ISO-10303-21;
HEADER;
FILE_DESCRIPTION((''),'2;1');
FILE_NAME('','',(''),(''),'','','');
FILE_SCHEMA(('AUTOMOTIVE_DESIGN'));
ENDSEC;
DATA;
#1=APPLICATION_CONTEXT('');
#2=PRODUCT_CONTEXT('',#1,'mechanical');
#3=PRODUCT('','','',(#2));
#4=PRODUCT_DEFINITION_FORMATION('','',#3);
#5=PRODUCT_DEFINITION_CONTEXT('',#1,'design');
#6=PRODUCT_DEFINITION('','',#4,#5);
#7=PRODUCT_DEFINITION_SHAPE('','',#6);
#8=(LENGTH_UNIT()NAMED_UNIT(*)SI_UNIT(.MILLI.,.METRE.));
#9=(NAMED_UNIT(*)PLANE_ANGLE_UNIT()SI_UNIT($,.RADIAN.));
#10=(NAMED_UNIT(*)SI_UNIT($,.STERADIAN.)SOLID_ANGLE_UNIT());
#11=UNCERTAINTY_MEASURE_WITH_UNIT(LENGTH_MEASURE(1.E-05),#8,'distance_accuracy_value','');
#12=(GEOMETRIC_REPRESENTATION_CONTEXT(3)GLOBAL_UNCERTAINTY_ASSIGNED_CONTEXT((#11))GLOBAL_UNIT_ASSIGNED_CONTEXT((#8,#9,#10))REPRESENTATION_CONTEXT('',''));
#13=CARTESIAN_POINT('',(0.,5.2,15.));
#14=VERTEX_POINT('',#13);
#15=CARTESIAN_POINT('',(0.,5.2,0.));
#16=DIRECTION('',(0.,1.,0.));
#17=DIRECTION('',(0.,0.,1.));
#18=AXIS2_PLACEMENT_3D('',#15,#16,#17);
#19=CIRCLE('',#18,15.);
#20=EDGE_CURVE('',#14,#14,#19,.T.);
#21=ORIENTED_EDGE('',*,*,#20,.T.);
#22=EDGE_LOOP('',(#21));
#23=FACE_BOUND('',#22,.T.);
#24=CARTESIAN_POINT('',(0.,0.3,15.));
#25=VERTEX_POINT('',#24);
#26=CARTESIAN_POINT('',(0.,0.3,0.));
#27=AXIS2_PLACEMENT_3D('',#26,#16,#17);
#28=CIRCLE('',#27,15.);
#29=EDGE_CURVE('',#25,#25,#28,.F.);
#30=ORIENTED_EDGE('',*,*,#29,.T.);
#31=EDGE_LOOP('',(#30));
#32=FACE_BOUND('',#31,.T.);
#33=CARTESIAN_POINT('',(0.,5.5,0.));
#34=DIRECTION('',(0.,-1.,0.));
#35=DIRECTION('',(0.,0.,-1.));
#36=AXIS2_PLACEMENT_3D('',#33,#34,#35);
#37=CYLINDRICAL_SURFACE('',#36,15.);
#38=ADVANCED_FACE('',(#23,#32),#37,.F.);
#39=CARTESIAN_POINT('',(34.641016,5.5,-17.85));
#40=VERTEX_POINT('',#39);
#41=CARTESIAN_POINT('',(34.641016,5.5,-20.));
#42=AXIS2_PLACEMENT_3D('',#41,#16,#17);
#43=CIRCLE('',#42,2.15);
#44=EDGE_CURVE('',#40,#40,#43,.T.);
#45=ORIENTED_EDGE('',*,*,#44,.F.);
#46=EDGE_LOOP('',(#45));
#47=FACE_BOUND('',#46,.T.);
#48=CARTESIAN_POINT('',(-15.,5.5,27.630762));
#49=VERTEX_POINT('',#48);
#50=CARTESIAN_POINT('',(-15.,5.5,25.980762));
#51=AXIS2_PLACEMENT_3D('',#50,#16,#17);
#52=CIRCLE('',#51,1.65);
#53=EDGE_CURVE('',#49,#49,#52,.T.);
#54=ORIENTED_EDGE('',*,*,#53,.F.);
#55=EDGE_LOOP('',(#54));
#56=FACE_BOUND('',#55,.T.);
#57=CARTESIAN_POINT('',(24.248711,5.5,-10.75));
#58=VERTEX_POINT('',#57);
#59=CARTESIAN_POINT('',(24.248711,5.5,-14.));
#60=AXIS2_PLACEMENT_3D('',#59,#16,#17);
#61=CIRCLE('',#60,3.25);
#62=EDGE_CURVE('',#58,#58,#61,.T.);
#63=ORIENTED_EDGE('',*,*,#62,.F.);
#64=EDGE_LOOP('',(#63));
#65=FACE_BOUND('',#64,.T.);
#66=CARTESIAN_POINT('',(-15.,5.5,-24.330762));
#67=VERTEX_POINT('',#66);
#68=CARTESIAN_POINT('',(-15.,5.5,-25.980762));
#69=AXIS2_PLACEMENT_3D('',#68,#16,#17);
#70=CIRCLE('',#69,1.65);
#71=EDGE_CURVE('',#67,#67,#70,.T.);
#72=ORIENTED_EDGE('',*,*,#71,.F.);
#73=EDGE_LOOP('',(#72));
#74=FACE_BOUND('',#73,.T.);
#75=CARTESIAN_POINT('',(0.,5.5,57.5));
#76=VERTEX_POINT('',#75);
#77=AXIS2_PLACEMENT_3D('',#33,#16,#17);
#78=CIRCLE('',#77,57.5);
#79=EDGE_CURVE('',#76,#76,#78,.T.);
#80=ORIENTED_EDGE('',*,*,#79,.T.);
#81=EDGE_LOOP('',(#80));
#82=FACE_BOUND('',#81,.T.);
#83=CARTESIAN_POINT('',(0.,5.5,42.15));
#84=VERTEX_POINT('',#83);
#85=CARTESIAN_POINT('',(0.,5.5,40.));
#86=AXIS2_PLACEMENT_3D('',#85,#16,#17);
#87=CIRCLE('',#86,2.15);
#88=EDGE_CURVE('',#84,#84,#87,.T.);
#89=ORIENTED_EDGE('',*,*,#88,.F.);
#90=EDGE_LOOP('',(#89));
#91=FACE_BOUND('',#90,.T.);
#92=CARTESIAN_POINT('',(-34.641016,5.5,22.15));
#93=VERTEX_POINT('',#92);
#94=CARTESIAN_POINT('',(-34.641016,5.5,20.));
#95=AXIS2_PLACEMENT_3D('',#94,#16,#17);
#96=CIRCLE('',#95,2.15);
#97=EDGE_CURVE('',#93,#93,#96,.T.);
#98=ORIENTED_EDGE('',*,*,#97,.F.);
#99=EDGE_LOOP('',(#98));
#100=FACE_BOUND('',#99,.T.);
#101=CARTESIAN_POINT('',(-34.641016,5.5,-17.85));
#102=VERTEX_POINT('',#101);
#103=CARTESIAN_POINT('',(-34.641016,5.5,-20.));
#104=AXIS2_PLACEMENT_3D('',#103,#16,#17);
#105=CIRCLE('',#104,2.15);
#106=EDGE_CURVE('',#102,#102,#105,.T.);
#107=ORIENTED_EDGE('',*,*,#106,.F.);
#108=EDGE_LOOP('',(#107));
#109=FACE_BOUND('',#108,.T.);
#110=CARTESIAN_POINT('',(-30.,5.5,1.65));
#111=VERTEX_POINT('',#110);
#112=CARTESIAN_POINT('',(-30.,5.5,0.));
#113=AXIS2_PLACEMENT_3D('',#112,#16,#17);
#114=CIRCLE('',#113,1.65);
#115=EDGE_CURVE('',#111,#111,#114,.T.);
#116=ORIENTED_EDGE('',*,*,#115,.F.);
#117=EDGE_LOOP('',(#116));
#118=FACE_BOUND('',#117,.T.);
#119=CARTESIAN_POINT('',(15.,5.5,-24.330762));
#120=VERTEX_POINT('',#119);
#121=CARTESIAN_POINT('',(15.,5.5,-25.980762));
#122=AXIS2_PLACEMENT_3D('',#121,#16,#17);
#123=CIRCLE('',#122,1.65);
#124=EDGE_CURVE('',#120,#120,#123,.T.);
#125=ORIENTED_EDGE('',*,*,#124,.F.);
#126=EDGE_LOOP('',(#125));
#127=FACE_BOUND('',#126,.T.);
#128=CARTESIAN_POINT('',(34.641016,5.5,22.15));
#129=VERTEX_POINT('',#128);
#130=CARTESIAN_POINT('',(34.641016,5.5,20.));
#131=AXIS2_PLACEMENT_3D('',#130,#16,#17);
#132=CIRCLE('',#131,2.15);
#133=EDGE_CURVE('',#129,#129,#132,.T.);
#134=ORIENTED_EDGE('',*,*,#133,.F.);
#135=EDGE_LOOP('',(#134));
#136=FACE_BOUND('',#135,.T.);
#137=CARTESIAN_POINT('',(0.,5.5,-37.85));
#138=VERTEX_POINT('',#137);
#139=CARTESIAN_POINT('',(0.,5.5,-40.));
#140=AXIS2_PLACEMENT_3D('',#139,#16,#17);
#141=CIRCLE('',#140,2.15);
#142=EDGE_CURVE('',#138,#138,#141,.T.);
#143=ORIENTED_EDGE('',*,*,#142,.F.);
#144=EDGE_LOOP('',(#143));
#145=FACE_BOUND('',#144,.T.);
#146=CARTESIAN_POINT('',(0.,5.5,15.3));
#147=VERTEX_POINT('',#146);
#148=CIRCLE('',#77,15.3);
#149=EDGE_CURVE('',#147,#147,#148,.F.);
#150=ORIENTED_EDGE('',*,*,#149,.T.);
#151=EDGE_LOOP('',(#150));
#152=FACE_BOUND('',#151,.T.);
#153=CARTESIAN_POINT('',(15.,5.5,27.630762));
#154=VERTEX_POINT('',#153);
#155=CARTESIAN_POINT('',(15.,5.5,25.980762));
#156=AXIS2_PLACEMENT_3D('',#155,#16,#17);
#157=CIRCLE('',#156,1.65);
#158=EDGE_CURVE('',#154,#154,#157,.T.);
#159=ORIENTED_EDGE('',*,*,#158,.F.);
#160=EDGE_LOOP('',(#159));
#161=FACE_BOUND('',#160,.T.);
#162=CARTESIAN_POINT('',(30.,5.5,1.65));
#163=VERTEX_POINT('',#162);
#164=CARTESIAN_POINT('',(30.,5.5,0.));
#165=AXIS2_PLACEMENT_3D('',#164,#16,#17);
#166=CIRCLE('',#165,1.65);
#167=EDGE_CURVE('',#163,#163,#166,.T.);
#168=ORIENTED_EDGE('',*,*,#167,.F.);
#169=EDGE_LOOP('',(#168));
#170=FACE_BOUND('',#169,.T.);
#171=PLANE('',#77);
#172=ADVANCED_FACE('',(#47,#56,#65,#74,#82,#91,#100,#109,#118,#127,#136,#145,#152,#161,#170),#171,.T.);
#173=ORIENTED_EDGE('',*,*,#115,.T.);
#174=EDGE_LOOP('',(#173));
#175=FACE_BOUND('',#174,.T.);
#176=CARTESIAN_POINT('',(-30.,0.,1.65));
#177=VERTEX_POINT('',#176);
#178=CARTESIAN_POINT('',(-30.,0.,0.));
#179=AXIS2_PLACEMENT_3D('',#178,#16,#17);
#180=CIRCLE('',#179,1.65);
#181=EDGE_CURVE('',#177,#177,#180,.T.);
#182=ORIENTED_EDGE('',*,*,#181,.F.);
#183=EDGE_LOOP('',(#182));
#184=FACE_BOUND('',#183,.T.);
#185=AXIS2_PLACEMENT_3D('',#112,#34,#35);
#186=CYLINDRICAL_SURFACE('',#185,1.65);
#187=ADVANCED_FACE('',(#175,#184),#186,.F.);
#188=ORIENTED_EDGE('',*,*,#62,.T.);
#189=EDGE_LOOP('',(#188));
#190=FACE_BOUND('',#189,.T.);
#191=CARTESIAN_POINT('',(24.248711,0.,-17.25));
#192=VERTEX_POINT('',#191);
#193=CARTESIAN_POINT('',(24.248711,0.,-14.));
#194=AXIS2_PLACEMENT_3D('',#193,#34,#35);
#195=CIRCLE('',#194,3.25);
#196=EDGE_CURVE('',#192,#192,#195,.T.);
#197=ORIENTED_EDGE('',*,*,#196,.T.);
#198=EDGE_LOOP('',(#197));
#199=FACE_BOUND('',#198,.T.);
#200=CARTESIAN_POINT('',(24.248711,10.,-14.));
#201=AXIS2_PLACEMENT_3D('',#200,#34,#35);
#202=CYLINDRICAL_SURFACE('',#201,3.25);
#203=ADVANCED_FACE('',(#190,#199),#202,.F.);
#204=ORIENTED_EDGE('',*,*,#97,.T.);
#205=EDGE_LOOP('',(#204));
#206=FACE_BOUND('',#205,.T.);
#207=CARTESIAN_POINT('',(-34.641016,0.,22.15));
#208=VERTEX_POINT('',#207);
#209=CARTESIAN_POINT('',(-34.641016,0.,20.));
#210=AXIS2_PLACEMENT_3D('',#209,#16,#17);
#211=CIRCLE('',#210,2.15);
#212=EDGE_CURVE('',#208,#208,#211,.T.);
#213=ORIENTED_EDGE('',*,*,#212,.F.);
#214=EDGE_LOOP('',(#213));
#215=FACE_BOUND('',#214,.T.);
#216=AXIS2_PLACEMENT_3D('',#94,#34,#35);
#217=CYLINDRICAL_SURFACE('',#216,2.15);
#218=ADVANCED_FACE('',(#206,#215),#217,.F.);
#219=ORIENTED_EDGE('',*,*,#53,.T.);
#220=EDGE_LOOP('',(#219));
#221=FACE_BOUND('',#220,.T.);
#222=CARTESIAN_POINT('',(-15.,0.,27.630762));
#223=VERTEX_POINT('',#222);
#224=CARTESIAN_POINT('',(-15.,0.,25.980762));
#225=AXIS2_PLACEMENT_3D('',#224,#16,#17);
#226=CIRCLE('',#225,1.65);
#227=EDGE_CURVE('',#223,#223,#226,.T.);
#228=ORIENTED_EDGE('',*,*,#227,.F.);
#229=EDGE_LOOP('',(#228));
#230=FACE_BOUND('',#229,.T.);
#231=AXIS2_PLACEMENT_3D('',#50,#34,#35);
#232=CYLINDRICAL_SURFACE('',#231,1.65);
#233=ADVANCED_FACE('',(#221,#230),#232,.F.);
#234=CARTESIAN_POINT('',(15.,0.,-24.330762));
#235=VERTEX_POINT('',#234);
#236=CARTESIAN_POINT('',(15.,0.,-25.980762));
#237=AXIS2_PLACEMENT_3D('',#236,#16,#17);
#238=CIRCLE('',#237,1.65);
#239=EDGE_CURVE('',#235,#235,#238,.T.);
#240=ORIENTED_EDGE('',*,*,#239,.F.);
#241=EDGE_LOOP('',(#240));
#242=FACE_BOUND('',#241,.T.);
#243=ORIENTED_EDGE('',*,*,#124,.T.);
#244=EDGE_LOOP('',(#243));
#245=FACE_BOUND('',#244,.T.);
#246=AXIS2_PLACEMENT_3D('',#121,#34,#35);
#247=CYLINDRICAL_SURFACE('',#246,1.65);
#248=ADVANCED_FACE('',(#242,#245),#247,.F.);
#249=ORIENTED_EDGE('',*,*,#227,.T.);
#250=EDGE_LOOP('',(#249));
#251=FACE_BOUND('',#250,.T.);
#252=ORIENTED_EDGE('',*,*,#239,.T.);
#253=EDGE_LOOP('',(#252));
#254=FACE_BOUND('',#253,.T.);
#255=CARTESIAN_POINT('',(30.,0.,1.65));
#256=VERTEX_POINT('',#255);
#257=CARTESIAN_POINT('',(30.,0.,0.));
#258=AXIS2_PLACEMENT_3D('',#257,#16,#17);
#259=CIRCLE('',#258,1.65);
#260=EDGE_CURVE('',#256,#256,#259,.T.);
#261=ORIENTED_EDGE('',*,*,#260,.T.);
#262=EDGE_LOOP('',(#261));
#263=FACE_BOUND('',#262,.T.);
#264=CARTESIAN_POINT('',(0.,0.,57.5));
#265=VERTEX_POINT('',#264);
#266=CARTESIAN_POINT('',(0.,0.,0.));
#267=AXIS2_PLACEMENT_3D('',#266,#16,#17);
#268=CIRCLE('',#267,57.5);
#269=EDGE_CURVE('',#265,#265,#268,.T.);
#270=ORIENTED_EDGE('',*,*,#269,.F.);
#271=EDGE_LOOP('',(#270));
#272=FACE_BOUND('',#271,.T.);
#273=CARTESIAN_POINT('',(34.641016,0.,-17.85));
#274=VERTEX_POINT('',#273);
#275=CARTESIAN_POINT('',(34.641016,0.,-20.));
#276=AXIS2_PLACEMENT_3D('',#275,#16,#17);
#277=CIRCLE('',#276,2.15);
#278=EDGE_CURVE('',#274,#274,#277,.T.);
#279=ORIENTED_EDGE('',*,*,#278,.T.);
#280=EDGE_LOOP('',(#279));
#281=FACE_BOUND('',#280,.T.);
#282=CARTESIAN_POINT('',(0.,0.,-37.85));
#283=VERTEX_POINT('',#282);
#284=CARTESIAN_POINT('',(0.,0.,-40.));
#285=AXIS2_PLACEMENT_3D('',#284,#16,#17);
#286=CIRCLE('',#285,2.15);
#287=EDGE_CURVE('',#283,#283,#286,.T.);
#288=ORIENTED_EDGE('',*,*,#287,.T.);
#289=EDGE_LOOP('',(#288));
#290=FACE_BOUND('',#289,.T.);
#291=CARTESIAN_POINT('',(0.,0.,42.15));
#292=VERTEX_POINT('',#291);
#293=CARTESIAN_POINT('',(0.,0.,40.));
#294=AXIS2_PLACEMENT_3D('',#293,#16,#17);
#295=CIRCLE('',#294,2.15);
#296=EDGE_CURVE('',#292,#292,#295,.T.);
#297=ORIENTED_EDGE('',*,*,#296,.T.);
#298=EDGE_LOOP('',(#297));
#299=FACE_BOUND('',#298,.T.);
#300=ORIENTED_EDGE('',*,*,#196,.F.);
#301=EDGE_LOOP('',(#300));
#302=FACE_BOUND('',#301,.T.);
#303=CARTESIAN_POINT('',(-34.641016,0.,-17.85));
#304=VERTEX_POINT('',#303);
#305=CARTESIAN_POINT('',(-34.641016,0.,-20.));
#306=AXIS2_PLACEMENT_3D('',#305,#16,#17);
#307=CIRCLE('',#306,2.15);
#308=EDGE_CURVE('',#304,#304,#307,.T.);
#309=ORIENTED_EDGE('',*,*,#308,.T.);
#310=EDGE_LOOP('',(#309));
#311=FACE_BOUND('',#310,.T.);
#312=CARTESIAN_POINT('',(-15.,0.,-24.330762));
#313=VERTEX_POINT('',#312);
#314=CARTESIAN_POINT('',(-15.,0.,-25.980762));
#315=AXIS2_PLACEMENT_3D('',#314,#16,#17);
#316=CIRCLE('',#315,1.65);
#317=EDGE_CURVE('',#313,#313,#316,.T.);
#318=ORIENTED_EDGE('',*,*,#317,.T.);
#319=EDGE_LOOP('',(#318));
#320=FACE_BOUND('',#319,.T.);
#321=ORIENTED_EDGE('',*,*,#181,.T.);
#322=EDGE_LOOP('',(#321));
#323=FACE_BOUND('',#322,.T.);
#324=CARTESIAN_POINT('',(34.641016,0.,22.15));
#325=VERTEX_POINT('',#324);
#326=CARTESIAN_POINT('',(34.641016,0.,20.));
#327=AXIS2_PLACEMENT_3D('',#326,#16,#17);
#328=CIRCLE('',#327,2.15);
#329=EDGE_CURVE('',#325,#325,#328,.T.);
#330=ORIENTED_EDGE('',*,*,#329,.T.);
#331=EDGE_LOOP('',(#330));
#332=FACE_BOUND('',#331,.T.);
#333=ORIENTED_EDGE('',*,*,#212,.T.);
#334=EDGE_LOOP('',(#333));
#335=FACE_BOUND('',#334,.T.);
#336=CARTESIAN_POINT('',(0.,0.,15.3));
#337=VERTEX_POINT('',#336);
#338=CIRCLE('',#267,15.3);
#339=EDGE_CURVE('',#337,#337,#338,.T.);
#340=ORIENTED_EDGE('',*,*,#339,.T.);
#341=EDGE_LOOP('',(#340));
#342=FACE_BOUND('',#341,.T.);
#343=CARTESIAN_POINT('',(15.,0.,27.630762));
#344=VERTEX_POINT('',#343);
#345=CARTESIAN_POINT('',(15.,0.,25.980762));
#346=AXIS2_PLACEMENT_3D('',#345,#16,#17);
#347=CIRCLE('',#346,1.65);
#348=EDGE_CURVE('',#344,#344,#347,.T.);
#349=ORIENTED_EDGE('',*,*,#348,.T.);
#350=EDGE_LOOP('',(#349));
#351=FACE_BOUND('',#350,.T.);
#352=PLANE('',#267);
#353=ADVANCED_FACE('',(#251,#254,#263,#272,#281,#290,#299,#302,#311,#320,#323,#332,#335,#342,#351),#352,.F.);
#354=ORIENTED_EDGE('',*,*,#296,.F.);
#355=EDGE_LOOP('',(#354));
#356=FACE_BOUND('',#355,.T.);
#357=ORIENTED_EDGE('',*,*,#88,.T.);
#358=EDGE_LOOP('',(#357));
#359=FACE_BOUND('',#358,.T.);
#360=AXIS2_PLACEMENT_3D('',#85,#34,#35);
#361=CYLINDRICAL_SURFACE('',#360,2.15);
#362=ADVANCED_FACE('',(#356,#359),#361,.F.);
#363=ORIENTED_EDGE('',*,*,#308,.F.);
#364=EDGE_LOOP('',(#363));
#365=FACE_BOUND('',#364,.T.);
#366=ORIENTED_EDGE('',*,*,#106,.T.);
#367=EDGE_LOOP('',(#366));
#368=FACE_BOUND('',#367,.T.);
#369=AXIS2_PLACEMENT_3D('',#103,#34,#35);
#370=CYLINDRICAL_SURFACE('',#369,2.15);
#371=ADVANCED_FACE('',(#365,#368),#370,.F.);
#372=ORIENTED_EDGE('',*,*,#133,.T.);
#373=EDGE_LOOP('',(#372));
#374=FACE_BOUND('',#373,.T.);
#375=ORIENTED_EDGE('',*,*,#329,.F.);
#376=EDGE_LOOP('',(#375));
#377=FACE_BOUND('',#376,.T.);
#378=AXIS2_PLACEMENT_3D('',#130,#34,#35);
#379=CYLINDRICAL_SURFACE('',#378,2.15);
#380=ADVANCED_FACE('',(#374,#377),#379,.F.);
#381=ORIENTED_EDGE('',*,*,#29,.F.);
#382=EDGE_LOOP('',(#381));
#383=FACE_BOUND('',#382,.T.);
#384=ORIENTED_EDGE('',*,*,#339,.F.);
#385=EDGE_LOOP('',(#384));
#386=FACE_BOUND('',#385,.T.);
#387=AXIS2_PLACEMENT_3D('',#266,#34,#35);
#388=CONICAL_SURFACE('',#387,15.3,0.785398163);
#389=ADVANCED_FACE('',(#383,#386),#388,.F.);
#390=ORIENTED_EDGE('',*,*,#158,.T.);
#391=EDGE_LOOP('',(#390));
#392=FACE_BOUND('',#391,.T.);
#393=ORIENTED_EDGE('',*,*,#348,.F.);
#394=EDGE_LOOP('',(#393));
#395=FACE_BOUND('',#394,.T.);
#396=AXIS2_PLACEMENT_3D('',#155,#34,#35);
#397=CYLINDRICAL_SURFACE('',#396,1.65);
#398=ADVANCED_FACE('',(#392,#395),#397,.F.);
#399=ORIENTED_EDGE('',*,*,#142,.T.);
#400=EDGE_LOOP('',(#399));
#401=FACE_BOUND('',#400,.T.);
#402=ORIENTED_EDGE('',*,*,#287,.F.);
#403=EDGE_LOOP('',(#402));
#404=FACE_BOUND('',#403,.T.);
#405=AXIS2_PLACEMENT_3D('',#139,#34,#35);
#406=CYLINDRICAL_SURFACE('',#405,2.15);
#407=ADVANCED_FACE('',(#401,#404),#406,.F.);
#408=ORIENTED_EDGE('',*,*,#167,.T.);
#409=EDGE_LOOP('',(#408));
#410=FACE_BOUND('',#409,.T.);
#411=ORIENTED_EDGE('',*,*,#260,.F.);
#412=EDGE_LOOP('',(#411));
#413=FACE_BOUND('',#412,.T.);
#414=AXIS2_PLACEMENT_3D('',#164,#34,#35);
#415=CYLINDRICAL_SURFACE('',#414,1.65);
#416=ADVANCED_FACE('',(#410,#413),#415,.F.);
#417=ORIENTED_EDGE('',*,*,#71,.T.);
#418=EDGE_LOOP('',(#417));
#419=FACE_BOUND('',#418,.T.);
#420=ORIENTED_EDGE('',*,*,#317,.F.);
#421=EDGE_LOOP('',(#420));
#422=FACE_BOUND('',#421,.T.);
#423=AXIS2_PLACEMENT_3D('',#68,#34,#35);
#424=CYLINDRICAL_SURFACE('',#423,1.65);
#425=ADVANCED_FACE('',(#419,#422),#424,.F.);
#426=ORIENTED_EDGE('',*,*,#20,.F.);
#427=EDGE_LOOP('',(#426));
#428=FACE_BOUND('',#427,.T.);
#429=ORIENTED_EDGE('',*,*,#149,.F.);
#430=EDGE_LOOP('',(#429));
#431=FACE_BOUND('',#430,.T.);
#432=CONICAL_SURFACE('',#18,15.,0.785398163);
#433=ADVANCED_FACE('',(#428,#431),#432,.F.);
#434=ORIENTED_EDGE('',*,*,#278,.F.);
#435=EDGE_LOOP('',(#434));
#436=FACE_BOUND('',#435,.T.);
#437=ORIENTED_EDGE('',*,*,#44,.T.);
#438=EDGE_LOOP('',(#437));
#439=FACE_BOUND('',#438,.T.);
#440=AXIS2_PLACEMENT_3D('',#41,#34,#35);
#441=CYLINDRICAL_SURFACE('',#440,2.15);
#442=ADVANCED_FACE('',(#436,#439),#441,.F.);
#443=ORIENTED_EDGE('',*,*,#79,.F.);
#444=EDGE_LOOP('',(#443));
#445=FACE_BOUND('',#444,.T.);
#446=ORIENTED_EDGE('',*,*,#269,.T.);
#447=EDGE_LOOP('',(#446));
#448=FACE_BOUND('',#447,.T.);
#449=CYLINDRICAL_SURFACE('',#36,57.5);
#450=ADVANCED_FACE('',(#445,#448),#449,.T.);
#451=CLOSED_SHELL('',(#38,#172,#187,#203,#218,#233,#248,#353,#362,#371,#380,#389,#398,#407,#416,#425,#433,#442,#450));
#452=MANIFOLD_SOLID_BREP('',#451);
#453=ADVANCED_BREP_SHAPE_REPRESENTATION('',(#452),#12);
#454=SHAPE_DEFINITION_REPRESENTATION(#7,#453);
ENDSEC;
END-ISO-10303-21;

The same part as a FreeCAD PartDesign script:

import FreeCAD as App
import Part
import Sketcher
from FreeCAD import Vector
Q = App.Units.Quantity


def edges_at(feature, points):
    """Names of the edges that pass closest to the given points."""
    edges = feature.Shape.Edges
    near = lambda p: min(range(len(edges)), key=lambda i: edges[i].distToShape(Part.Vertex(*p))[0])
    return sorted({f"Edge{near(p) + 1}" for p in points})

doc = App.newDocument("Part")
params = doc.addObject("Spreadsheet::Sheet", "Params")
for row, (alias, value) in enumerate([
    ("sketch1_diameter", "115 mm"),
    ("sketch1_diameter2", "30 mm"),
    ("sketch1_diameter3", "3.3 mm"),
    ("sketch1_diameter4", "4.3 mm"),
    ("pad1_length", "5.5 mm"),
    ("chamfer_size", "0.3 mm"),
    ("sketch2_diameter", "6.5 mm"),
    ("pocket1_length", "10 mm"),
], start=1):
    params.set(f"A{row}", alias)
    params.set(f"B{row}", "=" + value)
    params.setAlias(f"B{row}", alias)

body = doc.addObject("PartDesign::Body", "Body")

sketch1 = body.newObject("Sketcher::SketchObject", "Sketch")
sketch1.AttachmentSupport = (doc.getObject("XZ_Plane"), [""])
sketch1.MapMode = "FlatFace"
sketch1.addGeometry(Part.Circle(Vector(0, 0, 0), Vector(0, 0, 1), 57.5), False)
sketch1.addGeometry(Part.Circle(Vector(-15, 25.980762, 0), Vector(0, 0, 1), 1.65), False)
sketch1.addGeometry(Part.Circle(Vector(-34.641016, 20, 0), Vector(0, 0, 1), 2.15), False)
sketch1.addGeometry(Part.Circle(Vector(0, 40, 0), Vector(0, 0, 1), 2.15), False)
sketch1.addGeometry(Part.Circle(Vector(15, 25.980762, 0), Vector(0, 0, 1), 1.65), False)
sketch1.addGeometry(Part.Circle(Vector(34.641016, 20, 0), Vector(0, 0, 1), 2.15), False)
sketch1.addGeometry(Part.Circle(Vector(-30, 0, 0), Vector(0, 0, 1), 1.65), False)
sketch1.addGeometry(Part.Circle(Vector(-34.641016, -20, 0), Vector(0, 0, 1), 2.15), False)
sketch1.addGeometry(Part.Circle(Vector(-15, -25.980762, 0), Vector(0, 0, 1), 1.65), False)
sketch1.addGeometry(Part.Circle(Vector(0, 0, 0), Vector(0, 0, 1), 15), False)
sketch1.addGeometry(Part.Circle(Vector(30, 0, 0), Vector(0, 0, 1), 1.65), False)
sketch1.addGeometry(Part.Circle(Vector(34.641016, -20, 0), Vector(0, 0, 1), 2.15), False)
sketch1.addGeometry(Part.Circle(Vector(15, -25.980762, 0), Vector(0, 0, 1), 1.65), False)
sketch1.addGeometry(Part.Circle(Vector(0, -40, 0), Vector(0, 0, 1), 2.15), False)
sketch1.addConstraint(Sketcher.Constraint("Coincident", 0, 3, -1, 1))
sketch1.addConstraint(Sketcher.Constraint("Coincident", 9, 3, -1, 1))
sketch1.addConstraint(Sketcher.Constraint("Equal", 2, 3))
sketch1.addConstraint(Sketcher.Constraint("Equal", 1, 4))
sketch1.addConstraint(Sketcher.Constraint("Equal", 3, 5))
sketch1.addConstraint(Sketcher.Constraint("Equal", 4, 6))
sketch1.addConstraint(Sketcher.Constraint("Equal", 5, 7))
sketch1.addConstraint(Sketcher.Constraint("Equal", 6, 8))
sketch1.addConstraint(Sketcher.Constraint("Equal", 8, 10))
sketch1.addConstraint(Sketcher.Constraint("Equal", 7, 11))
sketch1.addConstraint(Sketcher.Constraint("Equal", 10, 12))
sketch1.addConstraint(Sketcher.Constraint("Equal", 11, 13))
sketch1.addConstraint(Sketcher.Constraint("Symmetric", 5, 3, 7, 3, -1, 1))
sketch1.addConstraint(Sketcher.Constraint("Symmetric", 4, 3, 8, 3, -1, 1))
sketch1.addConstraint(Sketcher.Constraint("Symmetric", 6, 3, 10, 3, -1, 1))
sketch1.addConstraint(Sketcher.Constraint("Symmetric", 2, 3, 11, 3, -1, 1))
sketch1.addConstraint(Sketcher.Constraint("Symmetric", 1, 3, 12, 3, -1, 1))
sketch1.addConstraint(Sketcher.Constraint("Symmetric", 3, 3, 13, 3, -1, 1))
sketch1.addConstraint(Sketcher.Constraint("Symmetric", 1, 3, 4, 3, -2))
sketch1.addConstraint(Sketcher.Constraint("Symmetric", 2, 3, 5, 3, -2))
sketch1.addConstraint(Sketcher.Constraint("PointOnObject", 3, 3, -2))
sketch1.addConstraint(Sketcher.Constraint("PointOnObject", 6, 3, -1))
sketch1.addConstraint(Sketcher.Constraint("Diameter", 0, Q("115 mm")))
sketch1.addConstraint(Sketcher.Constraint("Diameter", 9, Q("30 mm")))
sketch1.addConstraint(Sketcher.Constraint("Diameter", 1, Q("3.3 mm")))
sketch1.addConstraint(Sketcher.Constraint("Diameter", 2, Q("4.3 mm")))
sketch1.addConstraint(Sketcher.Constraint("DistanceX", 1, 3, -1, 1, Q("15 mm")))
sketch1.addConstraint(Sketcher.Constraint("DistanceY", -1, 1, 2, 3, Q("20 mm")))
sketch1.addConstraint(Sketcher.Constraint("DistanceY", -1, 1, 3, 3, Q("40 mm")))
sketch1.addConstraint(Sketcher.Constraint("DistanceX", 6, 3, -1, 1, Q("30 mm")))
sketch1.addConstraint(Sketcher.Constraint("DistanceY", -1, 1, 1, 3, Q("25.980762 mm")))
sketch1.addConstraint(Sketcher.Constraint("DistanceX", 2, 3, -1, 1, Q("34.641016 mm")))
sketch1.setExpression("Constraints[22]", "Params.sketch1_diameter")
sketch1.setExpression("Constraints[23]", "Params.sketch1_diameter2")
sketch1.setExpression("Constraints[24]", "Params.sketch1_diameter3")
sketch1.setExpression("Constraints[25]", "Params.sketch1_diameter4")
pad1 = body.newObject("PartDesign::Pad", "Pad")
pad1.Profile = sketch1
pad1.setExpression("Length", "Params.pad1_length")
pad1.Reversed = True
doc.recompute()

chamfer = body.newObject("PartDesign::Chamfer", "Chamfer")
chamfer.Base = (pad1, edges_at(pad1, [(-15, 0, 0), (-15, 5.5, 0)]))
chamfer.setExpression("Size", "Params.chamfer_size")

sketch2 = body.newObject("Sketcher::SketchObject", "Sketch001")
sketch2.AttachmentSupport = (doc.getObject("XZ_Plane"), [""])
sketch2.MapMode = "FlatFace"
sketch2.addGeometry(Part.Circle(Vector(24.248711, -14, 0), Vector(0, 0, 1), 3.25), False)
sketch2.addConstraint(Sketcher.Constraint("Diameter", 0, Q("6.5 mm")))
sketch2.addConstraint(Sketcher.Constraint("DistanceY", 0, 3, -1, 1, Q("14 mm")))
sketch2.addConstraint(Sketcher.Constraint("DistanceX", -1, 1, 0, 3, Q("24.248711 mm")))
sketch2.setExpression("Constraints[0]", "Params.sketch2_diameter")
pocket1 = body.newObject("PartDesign::Pocket", "Pocket")
pocket1.Profile = sketch2
pocket1.setExpression("Length", "Params.pocket1_length")

doc.recompute()
